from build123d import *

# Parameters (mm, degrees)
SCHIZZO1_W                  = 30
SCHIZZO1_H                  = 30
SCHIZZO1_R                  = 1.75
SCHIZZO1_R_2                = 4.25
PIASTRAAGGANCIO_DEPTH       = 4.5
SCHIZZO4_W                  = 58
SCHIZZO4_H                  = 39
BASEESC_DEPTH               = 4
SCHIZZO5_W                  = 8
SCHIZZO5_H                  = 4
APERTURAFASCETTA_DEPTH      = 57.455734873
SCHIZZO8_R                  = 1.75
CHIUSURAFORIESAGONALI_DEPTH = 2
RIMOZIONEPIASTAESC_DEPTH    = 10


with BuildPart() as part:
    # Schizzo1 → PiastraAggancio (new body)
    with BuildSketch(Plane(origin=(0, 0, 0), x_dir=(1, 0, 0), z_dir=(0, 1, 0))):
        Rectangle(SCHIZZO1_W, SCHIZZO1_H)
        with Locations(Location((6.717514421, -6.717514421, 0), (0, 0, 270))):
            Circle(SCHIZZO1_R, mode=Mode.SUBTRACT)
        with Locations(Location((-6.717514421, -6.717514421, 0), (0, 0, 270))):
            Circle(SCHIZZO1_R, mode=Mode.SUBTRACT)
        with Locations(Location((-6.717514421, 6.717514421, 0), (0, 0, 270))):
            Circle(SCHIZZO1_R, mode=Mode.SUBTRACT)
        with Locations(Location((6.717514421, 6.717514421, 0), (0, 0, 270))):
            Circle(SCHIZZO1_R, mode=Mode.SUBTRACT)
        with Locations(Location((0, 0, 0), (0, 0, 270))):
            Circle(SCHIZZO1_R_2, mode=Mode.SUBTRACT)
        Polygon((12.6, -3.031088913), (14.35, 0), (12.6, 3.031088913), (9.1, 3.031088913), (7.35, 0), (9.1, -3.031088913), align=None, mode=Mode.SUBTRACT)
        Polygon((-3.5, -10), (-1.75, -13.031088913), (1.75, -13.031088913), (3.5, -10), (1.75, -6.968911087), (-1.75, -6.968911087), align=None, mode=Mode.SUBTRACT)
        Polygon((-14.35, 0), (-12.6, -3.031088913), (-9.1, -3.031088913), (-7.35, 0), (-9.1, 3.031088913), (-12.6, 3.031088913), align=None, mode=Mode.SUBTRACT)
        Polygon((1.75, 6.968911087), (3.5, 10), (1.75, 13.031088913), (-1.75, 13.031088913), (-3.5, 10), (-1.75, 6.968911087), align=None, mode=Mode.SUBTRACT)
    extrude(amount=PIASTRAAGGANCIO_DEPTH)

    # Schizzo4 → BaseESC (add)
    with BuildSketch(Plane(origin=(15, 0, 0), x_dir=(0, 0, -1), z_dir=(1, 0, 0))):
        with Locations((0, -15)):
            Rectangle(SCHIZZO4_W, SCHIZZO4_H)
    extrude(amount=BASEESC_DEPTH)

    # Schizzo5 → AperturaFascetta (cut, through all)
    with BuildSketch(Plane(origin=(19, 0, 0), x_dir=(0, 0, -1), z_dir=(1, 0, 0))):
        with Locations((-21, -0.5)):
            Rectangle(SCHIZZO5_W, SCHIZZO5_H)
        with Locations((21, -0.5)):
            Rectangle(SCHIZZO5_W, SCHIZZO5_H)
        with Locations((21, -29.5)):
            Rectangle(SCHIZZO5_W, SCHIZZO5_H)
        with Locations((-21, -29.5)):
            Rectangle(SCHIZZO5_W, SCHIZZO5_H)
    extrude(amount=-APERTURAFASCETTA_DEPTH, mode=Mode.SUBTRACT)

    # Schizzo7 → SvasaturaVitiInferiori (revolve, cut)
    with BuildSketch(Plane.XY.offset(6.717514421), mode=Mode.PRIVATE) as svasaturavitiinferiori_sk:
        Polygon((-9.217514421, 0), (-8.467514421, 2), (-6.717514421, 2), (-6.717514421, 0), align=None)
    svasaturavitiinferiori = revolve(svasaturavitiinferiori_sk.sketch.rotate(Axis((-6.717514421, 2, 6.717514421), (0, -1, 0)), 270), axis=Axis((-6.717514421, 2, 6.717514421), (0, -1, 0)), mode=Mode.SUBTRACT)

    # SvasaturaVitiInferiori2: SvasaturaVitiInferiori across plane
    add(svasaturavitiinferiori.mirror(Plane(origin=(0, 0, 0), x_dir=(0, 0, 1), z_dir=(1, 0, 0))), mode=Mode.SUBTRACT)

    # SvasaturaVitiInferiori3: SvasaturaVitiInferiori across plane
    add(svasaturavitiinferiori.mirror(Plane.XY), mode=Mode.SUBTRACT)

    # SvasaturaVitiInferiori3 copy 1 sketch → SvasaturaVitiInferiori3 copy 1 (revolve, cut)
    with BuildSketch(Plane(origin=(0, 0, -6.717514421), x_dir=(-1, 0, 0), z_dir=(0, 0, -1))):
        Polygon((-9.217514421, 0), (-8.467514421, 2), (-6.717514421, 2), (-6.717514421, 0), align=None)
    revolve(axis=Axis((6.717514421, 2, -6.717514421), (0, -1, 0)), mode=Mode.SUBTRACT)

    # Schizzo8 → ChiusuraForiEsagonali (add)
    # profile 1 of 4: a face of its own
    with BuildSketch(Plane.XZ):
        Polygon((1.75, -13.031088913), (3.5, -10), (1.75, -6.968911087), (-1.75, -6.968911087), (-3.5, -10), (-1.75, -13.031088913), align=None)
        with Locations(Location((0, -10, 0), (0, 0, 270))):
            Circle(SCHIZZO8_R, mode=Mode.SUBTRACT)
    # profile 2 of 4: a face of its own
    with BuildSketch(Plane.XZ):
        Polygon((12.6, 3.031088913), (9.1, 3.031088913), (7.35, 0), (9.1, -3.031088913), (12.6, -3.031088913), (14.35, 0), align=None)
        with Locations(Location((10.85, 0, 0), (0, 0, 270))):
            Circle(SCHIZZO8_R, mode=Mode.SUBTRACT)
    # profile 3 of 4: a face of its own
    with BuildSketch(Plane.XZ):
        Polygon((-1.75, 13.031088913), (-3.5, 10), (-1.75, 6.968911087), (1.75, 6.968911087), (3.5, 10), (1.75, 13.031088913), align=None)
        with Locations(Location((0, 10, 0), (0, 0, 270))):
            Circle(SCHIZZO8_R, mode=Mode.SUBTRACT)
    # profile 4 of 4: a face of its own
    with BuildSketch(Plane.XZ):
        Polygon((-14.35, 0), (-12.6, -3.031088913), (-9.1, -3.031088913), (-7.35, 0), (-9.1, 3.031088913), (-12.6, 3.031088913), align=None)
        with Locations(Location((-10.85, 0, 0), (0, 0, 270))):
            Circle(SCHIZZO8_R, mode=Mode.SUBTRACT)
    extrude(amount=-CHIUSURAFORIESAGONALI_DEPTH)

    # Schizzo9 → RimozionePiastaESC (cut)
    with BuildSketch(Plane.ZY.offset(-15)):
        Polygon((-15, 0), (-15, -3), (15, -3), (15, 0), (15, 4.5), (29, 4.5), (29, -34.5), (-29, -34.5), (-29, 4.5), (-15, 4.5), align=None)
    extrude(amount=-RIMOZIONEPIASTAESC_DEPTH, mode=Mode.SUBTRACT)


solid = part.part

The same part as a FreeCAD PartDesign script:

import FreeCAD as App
import Part
import Sketcher

V = App.Vector
Q = App.Units.Quantity


def add_polygon(sketch, points):
    """Adds a closed chain of lines whose ends are joined by coincident constraints."""
    first, n = sketch.GeometryCount, len(points)
    for a, b in zip(points, points[1:] + points[:1]):
        sketch.addGeometry(Part.LineSegment(App.Vector(*a, 0), App.Vector(*b, 0)), False)
    for i in range(n):
        sketch.addConstraint(Sketcher.Constraint("Coincident", first + i, 2, first + (i + 1) % n, 1))

doc = App.newDocument("Part")
body = doc.addObject("PartDesign::Body", "Body")

sketch1 = doc.addObject("Sketcher::SketchObject", "Sketch")
body.addObject(sketch1)
sketch1.AttachmentSupport = (doc.XZ_Plane, [""])
sketch1.MapMode = "FlatFace"
add_polygon(sketch1, [(-15, -15), (-15, 15), (15, 15), (15, -15)])
add_polygon(sketch1, [(-1.8, 13), (-3.5, 10), (-1.8, 7), (1.8, 7), (3.5, 10), (1.8, 13)])
sketch1.addGeometry(Part.Circle(V(-6.7, 6.7, 0), V(0, 0, 1), 1.8), False)
sketch1.addGeometry(Part.Circle(V(6.7, 6.7, 0), V(0, 0, 1), 1.8), False)
add_polygon(sketch1, [(-12.6, 3), (-14.3, 0), (-12.6, -3), (-9.1, -3), (-7.3, 0), (-9.1, 3)])
sketch1.addGeometry(Part.Circle(V(0, 0, 0), V(0, 0, 1), 4.2), False)
sketch1.addGeometry(Part.Circle(V(-6.7, -6.7, 0), V(0, 0, 1), 1.8), False)
add_polygon(sketch1, [(3.5, -10), (1.8, -7), (-1.8, -7), (-3.5, -10), (-1.8, -13), (1.8, -13)])
add_polygon(sketch1, [(14.3, 0), (12.6, 3), (9.1, 3), (7.3, 0), (9.1, -3), (12.6, -3)])
sketch1.addGeometry(Part.Circle(V(6.7, -6.7, 0), V(0, 0, 1), 1.8), False)
sketch1.addConstraint([
    Sketcher.Constraint("Vertical", 0),
    Sketcher.Constraint("Horizontal", 1),
    Sketcher.Constraint("Vertical", 2),
    Sketcher.Constraint("Horizontal", 3),
    Sketcher.Constraint("Horizontal", 6),
    Sketcher.Constraint("Horizontal", 9),
    Sketcher.Constraint("Horizontal", 14),
    Sketcher.Constraint("Horizontal", 17),
    Sketcher.Constraint("Horizontal", 21),
    Sketcher.Constraint("Horizontal", 24),
    Sketcher.Constraint("Horizontal", 27),
    Sketcher.Constraint("Horizontal", 30),
    Sketcher.Constraint("Coincident", 18, 3, -1, 1),
    Sketcher.Constraint("Equal", 10, 11),
    Sketcher.Constraint("Equal", 11, 19),
    Sketcher.Constraint("Equal", 19, 32),
    Sketcher.Constraint("Symmetric", 11, 3, 19, 3, -1, 1),
    Sketcher.Constraint("Symmetric", 10, 3, 32, 3, -1, 1),
    Sketcher.Constraint("Symmetric", 0, 2, 2, 2, -1, 1),
    Sketcher.Constraint("Symmetric", 5, 2, 20, 2, -1, 1),
    Sketcher.Constraint("Symmetric", 7, 2, 22, 2, -1, 1),
    Sketcher.Constraint("Symmetric", 8, 2, 23, 2, -1, 1),
    Sketcher.Constraint("Symmetric", 4, 2, 25, 2, -1, 1),
    Sketcher.Constraint("Symmetric", 13, 2, 26, 2, -1, 1),
    Sketcher.Constraint("Symmetric", 15, 2, 28, 2, -1, 1),
    Sketcher.Constraint("Symmetric", 16, 2, 29, 2, -1, 1),
    Sketcher.Constraint("Symmetric", 12, 2, 31, 2, -1, 1),
    Sketcher.Constraint("Symmetric", 10, 3, 11, 3, -2),
    Sketcher.Constraint("Symmetric", 4, 2, 7, 2, -2),
    Sketcher.Constraint("Symmetric", 17, 2, 26, 2, -2),
    Sketcher.Constraint("PointOnObject", 12, 2, -1),
    Sketcher.Constraint("PointOnObject", 15, 2, -1),
    Sketcher.Constraint("Parallel", 4, 7),
    Sketcher.Constraint("Parallel", 5, 8),
    Sketcher.Constraint("Parallel", 7, 12),
    Sketcher.Constraint("Parallel", 8, 13),
    Sketcher.Constraint("Parallel", 12, 15),
    Sketcher.Constraint("Parallel", 13, 16),
    Sketcher.Constraint("Parallel", 15, 22),
    Sketcher.Constraint("Parallel", 22, 25),
    Sketcher.Constraint("Parallel", 25, 28),
    Sketcher.Constraint("Parallel", 28, 31),
    Sketcher.Constraint("Vertical", 6, 2, 8, 2),
    Sketcher.Constraint("Equal", 9, 14),
    Sketcher.Constraint("Equal", 3, 0),
    Sketcher.Constraint("Equal", 8, 12),
    Sketcher.Constraint("Diameter", 10, Q("3.5 mm")),
    Sketcher.Constraint("Diameter", 18, Q("8.5 mm")),
    Sketcher.Constraint("DistanceX", 1, 1, 1, 2, Q("30 mm")),
    Sketcher.Constraint("Angle", 4, Q("-120 deg")),
    Sketcher.Constraint("DistanceX", 6, 1, 6, 2, Q("3.5 mm")),
    Sketcher.Constraint("DistanceY", -1, 1, 4, 2, Q("10 mm")),
    Sketcher.Constraint("DistanceX", 4, 2, 7, 2, Q("7 mm")),
    Sketcher.Constraint("DistanceX", 13, 2, -1, 1, Q("12.6 mm")),
    Sketcher.Constraint("DistanceX", 10, 3, 11, 3, Q("13.435029 mm")),
    Sketcher.Constraint("DistanceY", 19, 3, 10, 3, Q("13.435029 mm")),
])
pad1 = doc.addObject("PartDesign::Pad", "Pad")
body.addObject(pad1)
pad1.Profile = sketch1
pad1.Length = 4.5
pad1.Reversed = True

sketch2 = doc.addObject("Sketcher::SketchObject", "Sketch001")
body.addObject(sketch2)
sketch2.AttachmentSupport = (doc.YZ_Plane, [""])
sketch2.MapMode = "FlatFace"
sketch2.AttachmentOffset = App.Placement(V(0, 0, 15), App.Rotation())
add_polygon(sketch2, [(4, 29), (-34, 29), (-34, -29), (4, -29)])
sketch2.addConstraint([
    Sketcher.Constraint("Horizontal", 0),
    Sketcher.Constraint("Vertical", 1),
    Sketcher.Constraint("Horizontal", 2),
    Sketcher.Constraint("Vertical", 3),
    Sketcher.Constraint("DistanceX", 0, 2, 0, 1, Q("39 mm")),
    Sketcher.Constraint("DistanceY", 1, 2, 1, 1, Q("58 mm")),
    Sketcher.Constraint("DistanceY", -1, 1, 0, 2, Q("29 mm")),
    Sketcher.Constraint("DistanceX", 0, 2, -1, 1, Q("34.5 mm")),
])
pad2 = doc.addObject("PartDesign::Pad", "Pad001")
body.addObject(pad2)
pad2.Profile = sketch2
pad2.Length = 4

sketch3 = doc.addObject("Sketcher::SketchObject", "Sketch002")
body.addObject(sketch3)
sketch3.AttachmentSupport = (doc.YZ_Plane, [""])
sketch3.MapMode = "FlatFace"
sketch3.AttachmentOffset = App.Placement(V(0, 0, 19), App.Rotation())
add_polygon(sketch3, [(1.5, 25), (-2.5, 25), (-2.5, 17), (1.5, 17)])
add_polygon(sketch3, [(1.5, -17), (-2.5, -17), (-2.5, -25), (1.5, -25)])
add_polygon(sketch3, [(-27.5, -17), (-31.5, -17), (-31.5, -25), (-27.5, -25)])
add_polygon(sketch3, [(-27.5, 25), (-31.5, 25), (-31.5, 17), (-27.5, 17)])
sketch3.addConstraint([
    Sketcher.Constraint("Horizontal", 0),
    Sketcher.Constraint("Vertical", 1),
    Sketcher.Constraint("Horizontal", 2),
    Sketcher.Constraint("Vertical", 3),
    Sketcher.Constraint("Horizontal", 4),
    Sketcher.Constraint("Vertical", 5),
    Sketcher.Constraint("Horizontal", 6),
    Sketcher.Constraint("Vertical", 7),
    Sketcher.Constraint("Horizontal", 8),
    Sketcher.Constraint("Vertical", 9),
    Sketcher.Constraint("Horizontal", 10),
    Sketcher.Constraint("Vertical", 11),
    Sketcher.Constraint("Horizontal", 12),
    Sketcher.Constraint("Vertical", 13),
    Sketcher.Constraint("Horizontal", 14),
    Sketcher.Constraint("Vertical", 15),
    Sketcher.Constraint("Symmetric", 1, 2, 4, 2, -1),
    Sketcher.Constraint("Symmetric", 3, 2, 6, 2, -1),
    Sketcher.Constraint("Symmetric", 9, 2, 12, 2, -1),
    Sketcher.Constraint("Symmetric", 11, 2, 14, 2, -1),
    Sketcher.Constraint("Horizontal", 7, 2, 8, 2),
    Sketcher.Constraint("Horizontal", 6, 2, 9, 2),
    Sketcher.Constraint("Equal", 6, 8),
    Sketcher.Constraint("DistanceX", 0, 2, 0, 1, Q("4 mm")),
    Sketcher.Constraint("DistanceY", 1, 2, 1, 1, Q("8 mm")),
    Sketcher.Constraint("DistanceY", -1, 1, 0, 2, Q("25 mm")),
    Sketcher.Constraint("DistanceX", 8, 2, 4, 2, Q("29 mm")),
    Sketcher.Constraint("DistanceX", 0, 2, -1, 1, Q("2.5 mm")),
])
pocket1 = doc.addObject("PartDesign::Pocket", "Pocket")
body.addObject(pocket1)
pocket1.Profile = sketch3
pocket1.Type = "ThroughAll"

sketch4 = doc.addObject("Sketcher::SketchObject", "Sketch003")
body.addObject(sketch4)
sketch4.AttachmentSupport = (doc.XY_Plane, [""])
sketch4.MapMode = "FlatFace"
sketch4.AttachmentOffset = App.Placement(V(0, 0, 6.717514), App.Rotation())
add_polygon(sketch4, [(-8.5, 2), (-9.2, 0), (-6.7, 0), (-6.7, 2)])
sketch4.addGeometry(Part.LineSegment(V(-6.7, 2, 0), V(-6.7, 0, 0)), True)
sketch4.addConstraint([
    Sketcher.Constraint("Horizontal", 1),
    Sketcher.Constraint("Vertical", 2),
    Sketcher.Constraint("Horizontal", 3),
    Sketcher.Constraint("Vertical", 4),
    Sketcher.Constraint("Coincident", 4, 1, 2, 2),
    Sketcher.Constraint("PointOnObject", 0, 2, -1),
    Sketcher.Constraint("PointOnObject", 4, 2, -1),
    Sketcher.Constraint("DistanceY", 2, 1, 2, 2, Q("2 mm")),
    Sketcher.Constraint("DistanceX", 1, 1, 1, 2, Q("2.5 mm")),
    Sketcher.Constraint("DistanceX", 3, 2, 3, 1, Q("1.75 mm")),
    Sketcher.Constraint("DistanceX", 0, 2, -1, 1, Q("9.217514 mm")),
])
groove = doc.addObject("PartDesign::Groove", "Groove")
body.addObject(groove)
groove.Profile = sketch4
groove.ReferenceAxis = (sketch4, ["Axis0"])
groove.Angle = 360
doc.recompute()

mirrored = doc.addObject("PartDesign::Mirrored", "Mirrored")
body.addObject(mirrored)
mirrored.Originals = [groove]
mirrored.MirrorPlane = (doc.YZ_Plane, [""])
body.Tip = mirrored
doc.recompute()

mirrored2 = doc.addObject("PartDesign::Mirrored", "Mirrored001")
body.addObject(mirrored2)
mirrored2.Originals = [groove]
mirrored2.MirrorPlane = (doc.XY_Plane, [""])
body.Tip = mirrored2

sketch5 = doc.addObject("Sketcher::SketchObject", "Sketch004")
body.addObject(sketch5)
sketch5.AttachmentSupport = (doc.XY_Plane, [""])
sketch5.MapMode = "FlatFace"
sketch5.AttachmentOffset = App.Placement(V(0, 0, -6.717514), App.Rotation())
add_polygon(sketch5, [(8.5, 2), (9.2, 0), (6.7, 0), (6.7, 2)])
sketch5.addGeometry(Part.LineSegment(V(6.7, 2, 0), V(6.7, 0, 0)), True)
sketch5.addConstraint([
    Sketcher.Constraint("Horizontal", 1),
    Sketcher.Constraint("Vertical", 2),
    Sketcher.Constraint("Horizontal", 3),
    Sketcher.Constraint("Vertical", 4),
    Sketcher.Constraint("Coincident", 4, 1, 2, 2),
    Sketcher.Constraint("PointOnObject", 0, 2, -1),
    Sketcher.Constraint("PointOnObject", 4, 2, -1),
    Sketcher.Constraint("DistanceY", 2, 1, 2, 2, Q("2 mm")),
    Sketcher.Constraint("DistanceX", 1, 2, 1, 1, Q("2.5 mm")),
    Sketcher.Constraint("DistanceX", 3, 1, 3, 2, Q("1.75 mm")),
    Sketcher.Constraint("DistanceX", -1, 1, 0, 2, Q("9.217514 mm")),
])
groove2 = doc.addObject("PartDesign::Groove", "Groove001")
body.addObject(groove2)
groove2.Profile = sketch5
groove2.ReferenceAxis = (sketch5, ["Axis0"])
groove2.Angle = 360

sketch6 = doc.addObject("Sketcher::SketchObject", "Sketch005")
body.addObject(sketch6)
sketch6.AttachmentSupport = (doc.XZ_Plane, [""])
sketch6.MapMode = "FlatFace"
add_polygon(sketch6, [(1.8, -13), (3.5, -10), (1.8, -7), (-1.8, -7), (-3.5, -10), (-1.8, -13)])
sketch6.addGeometry(Part.Circle(V(0, -10, 0), V(0, 0, 1), 1.8), False)
add_polygon(sketch6, [(12.6, 3), (9.1, 3), (7.3, 0), (9.1, -3), (12.6, -3), (14.3, 0)])
sketch6.addGeometry(Part.Circle(V(10.8, 0, 0), V(0, 0, 1), 1.8), False)
add_polygon(sketch6, [(-1.8, 13), (-3.5, 10), (-1.8, 7), (1.8, 7), (3.5, 10), (1.8, 13)])
sketch6.addGeometry(Part.Circle(V(0, 10, 0), V(0, 0, 1), 1.8), False)
add_polygon(sketch6, [(-14.3, 0), (-12.6, -3), (-9.1, -3), (-7.3, 0), (-9.1, 3), (-12.6, 3)])
sketch6.addGeometry(Part.Circle(V(-10.8, 0, 0), V(0, 0, 1), 1.8), False)
sketch6.addConstraint([
    Sketcher.Constraint("Horizontal", 2),
    Sketcher.Constraint("Horizontal", 5),
    Sketcher.Constraint("Horizontal", 7),
    Sketcher.Constraint("Horizontal", 10),
    Sketcher.Constraint("Horizontal", 16),
    Sketcher.Constraint("Horizontal", 19),
    Sketcher.Constraint("Horizontal", 22),
    Sketcher.Constraint("Horizontal", 25),
    Sketcher.Constraint("Equal", 6, 13),
    Sketcher.Constraint("Equal", 13, 20),
    Sketcher.Constraint("Equal", 20, 27),
    Sketcher.Constraint("Symmetric", 6, 3, 20, 3, -1, 1),
    Sketcher.Constraint("Symmetric", 13, 3, 27, 3, -1, 1),
    Sketcher.Constraint("Symmetric", 0, 2, 14, 2, -1, 1),
    Sketcher.Constraint("Symmetric", 1, 2, 15, 2, -1, 1),
    Sketcher.Constraint("Symmetric", 3, 2, 17, 2, -1, 1),
    Sketcher.Constraint("Symmetric", 4, 2, 18, 2, -1, 1),
    Sketcher.Constraint("Symmetric", 12, 2, 21, 2, -1, 1),
    Sketcher.Constraint("Symmetric", 8, 2, 23, 2, -1, 1),
    Sketcher.Constraint("Symmetric", 9, 2, 24, 2, -1, 1),
    Sketcher.Constraint("Symmetric", 11, 2, 26, 2, -1, 1),
    Sketcher.Constraint("Symmetric", 0, 2, 3, 2, -2),
    Sketcher.Constraint("Symmetric", 10, 2, 21, 2, -2),
    Sketcher.Constraint("PointOnObject", 6, 3, -2),
    Sketcher.Constraint("PointOnObject", 13, 3, -1),
    Sketcher.Constraint("PointOnObject", 8, 2, -1),
    Sketcher.Constraint("PointOnObject", 11, 2, -1),
    Sketcher.Constraint("Parallel", 0, 3),
    Sketcher.Constraint("Parallel", 1, 4),
    Sketcher.Constraint("Parallel", 3, 8),
    Sketcher.Constraint("Parallel", 4, 9),
    Sketcher.Constraint("Parallel", 8, 11),
    Sketcher.Constraint("Parallel", 9, 12),
    Sketcher.Constraint("Parallel", 11, 14),
    Sketcher.Constraint("Parallel", 14, 17),
    Sketcher.Constraint("Parallel", 17, 23),
    Sketcher.Constraint("Parallel", 23, 26),
    Sketcher.Constraint("Horizontal", 6, 3, 0, 2),
    Sketcher.Constraint("Vertical", 2, 2, 4, 2),
    Sketcher.Constraint("Equal", 5, 7),
    Sketcher.Constraint("Equal", 4, 8),
    Sketcher.Constraint("Diameter", 6, Q("3.5 mm")),
    Sketcher.Constraint("Angle", 0, Q("60 deg")),
    Sketcher.Constraint("DistanceX", 2, 2, 2, 1, Q("3.5 mm")),
    Sketcher.Constraint("DistanceY", 6, 3, -1, 1, Q("10 mm")),
    Sketcher.Constraint("DistanceX", 3, 2, 0, 2, Q("7 mm")),
    Sketcher.Constraint("DistanceX", -1, 1, 7, 2, Q("9.1 mm")),
    Sketcher.Constraint("DistanceX", 27, 3, 13, 3, Q("21.7 mm")),
])
pad3 = doc.addObject("PartDesign::Pad", "Pad002")
body.addObject(pad3)
pad3.Profile = sketch6
pad3.Length = 2
pad3.Reversed = True

sketch7 = doc.addObject("Sketcher::SketchObject", "Sketch006")
body.addObject(sketch7)
sketch7.AttachmentSupport = (doc.YZ_Plane, [""])
sketch7.MapMode = "FlatFace"
sketch7.AttachmentOffset = App.Placement(V(0, 0, 15), App.Rotation())
add_polygon(sketch7, [(-3, -15), (4, -15), (4, -29), (-34, -29), (-34, 29), (4, 29), (4, 15), (-3, 15)])
sketch7.addConstraint([
    Sketcher.Constraint("Horizontal", 0),
    Sketcher.Constraint("Vertical", 1),
    Sketcher.Constraint("Horizontal", 2),
    Sketcher.Constraint("Vertical", 3),
    Sketcher.Constraint("Horizontal", 4),
    Sketcher.Constraint("Vertical", 5),
    Sketcher.Constraint("Horizontal", 6),
    Sketcher.Constraint("Vertical", 7),
    Sketcher.Constraint("Symmetric", 1, 2, 4, 2, -1),
    Sketcher.Constraint("Equal", 1, 5),
    Sketcher.Constraint("DistanceX", 2, 2, 2, 1, Q("39 mm")),
    Sketcher.Constraint("DistanceY", 1, 2, 1, 1, Q("14 mm")),
    Sketcher.Constraint("DistanceY", 3, 1, 3, 2, Q("58 mm")),
    Sketcher.Constraint("DistanceX", 0, 1, 0, 2, Q("7.5 mm")),
    Sketcher.Constraint("DistanceX", 6, 2, -1, 1, Q("3 mm")),
])
pocket2 = doc.addObject("PartDesign::Pocket", "Pocket001")
body.addObject(pocket2)
pocket2.Profile = sketch7
pocket2.Length = 10
pocket2.Reversed = True

doc.recompute()
